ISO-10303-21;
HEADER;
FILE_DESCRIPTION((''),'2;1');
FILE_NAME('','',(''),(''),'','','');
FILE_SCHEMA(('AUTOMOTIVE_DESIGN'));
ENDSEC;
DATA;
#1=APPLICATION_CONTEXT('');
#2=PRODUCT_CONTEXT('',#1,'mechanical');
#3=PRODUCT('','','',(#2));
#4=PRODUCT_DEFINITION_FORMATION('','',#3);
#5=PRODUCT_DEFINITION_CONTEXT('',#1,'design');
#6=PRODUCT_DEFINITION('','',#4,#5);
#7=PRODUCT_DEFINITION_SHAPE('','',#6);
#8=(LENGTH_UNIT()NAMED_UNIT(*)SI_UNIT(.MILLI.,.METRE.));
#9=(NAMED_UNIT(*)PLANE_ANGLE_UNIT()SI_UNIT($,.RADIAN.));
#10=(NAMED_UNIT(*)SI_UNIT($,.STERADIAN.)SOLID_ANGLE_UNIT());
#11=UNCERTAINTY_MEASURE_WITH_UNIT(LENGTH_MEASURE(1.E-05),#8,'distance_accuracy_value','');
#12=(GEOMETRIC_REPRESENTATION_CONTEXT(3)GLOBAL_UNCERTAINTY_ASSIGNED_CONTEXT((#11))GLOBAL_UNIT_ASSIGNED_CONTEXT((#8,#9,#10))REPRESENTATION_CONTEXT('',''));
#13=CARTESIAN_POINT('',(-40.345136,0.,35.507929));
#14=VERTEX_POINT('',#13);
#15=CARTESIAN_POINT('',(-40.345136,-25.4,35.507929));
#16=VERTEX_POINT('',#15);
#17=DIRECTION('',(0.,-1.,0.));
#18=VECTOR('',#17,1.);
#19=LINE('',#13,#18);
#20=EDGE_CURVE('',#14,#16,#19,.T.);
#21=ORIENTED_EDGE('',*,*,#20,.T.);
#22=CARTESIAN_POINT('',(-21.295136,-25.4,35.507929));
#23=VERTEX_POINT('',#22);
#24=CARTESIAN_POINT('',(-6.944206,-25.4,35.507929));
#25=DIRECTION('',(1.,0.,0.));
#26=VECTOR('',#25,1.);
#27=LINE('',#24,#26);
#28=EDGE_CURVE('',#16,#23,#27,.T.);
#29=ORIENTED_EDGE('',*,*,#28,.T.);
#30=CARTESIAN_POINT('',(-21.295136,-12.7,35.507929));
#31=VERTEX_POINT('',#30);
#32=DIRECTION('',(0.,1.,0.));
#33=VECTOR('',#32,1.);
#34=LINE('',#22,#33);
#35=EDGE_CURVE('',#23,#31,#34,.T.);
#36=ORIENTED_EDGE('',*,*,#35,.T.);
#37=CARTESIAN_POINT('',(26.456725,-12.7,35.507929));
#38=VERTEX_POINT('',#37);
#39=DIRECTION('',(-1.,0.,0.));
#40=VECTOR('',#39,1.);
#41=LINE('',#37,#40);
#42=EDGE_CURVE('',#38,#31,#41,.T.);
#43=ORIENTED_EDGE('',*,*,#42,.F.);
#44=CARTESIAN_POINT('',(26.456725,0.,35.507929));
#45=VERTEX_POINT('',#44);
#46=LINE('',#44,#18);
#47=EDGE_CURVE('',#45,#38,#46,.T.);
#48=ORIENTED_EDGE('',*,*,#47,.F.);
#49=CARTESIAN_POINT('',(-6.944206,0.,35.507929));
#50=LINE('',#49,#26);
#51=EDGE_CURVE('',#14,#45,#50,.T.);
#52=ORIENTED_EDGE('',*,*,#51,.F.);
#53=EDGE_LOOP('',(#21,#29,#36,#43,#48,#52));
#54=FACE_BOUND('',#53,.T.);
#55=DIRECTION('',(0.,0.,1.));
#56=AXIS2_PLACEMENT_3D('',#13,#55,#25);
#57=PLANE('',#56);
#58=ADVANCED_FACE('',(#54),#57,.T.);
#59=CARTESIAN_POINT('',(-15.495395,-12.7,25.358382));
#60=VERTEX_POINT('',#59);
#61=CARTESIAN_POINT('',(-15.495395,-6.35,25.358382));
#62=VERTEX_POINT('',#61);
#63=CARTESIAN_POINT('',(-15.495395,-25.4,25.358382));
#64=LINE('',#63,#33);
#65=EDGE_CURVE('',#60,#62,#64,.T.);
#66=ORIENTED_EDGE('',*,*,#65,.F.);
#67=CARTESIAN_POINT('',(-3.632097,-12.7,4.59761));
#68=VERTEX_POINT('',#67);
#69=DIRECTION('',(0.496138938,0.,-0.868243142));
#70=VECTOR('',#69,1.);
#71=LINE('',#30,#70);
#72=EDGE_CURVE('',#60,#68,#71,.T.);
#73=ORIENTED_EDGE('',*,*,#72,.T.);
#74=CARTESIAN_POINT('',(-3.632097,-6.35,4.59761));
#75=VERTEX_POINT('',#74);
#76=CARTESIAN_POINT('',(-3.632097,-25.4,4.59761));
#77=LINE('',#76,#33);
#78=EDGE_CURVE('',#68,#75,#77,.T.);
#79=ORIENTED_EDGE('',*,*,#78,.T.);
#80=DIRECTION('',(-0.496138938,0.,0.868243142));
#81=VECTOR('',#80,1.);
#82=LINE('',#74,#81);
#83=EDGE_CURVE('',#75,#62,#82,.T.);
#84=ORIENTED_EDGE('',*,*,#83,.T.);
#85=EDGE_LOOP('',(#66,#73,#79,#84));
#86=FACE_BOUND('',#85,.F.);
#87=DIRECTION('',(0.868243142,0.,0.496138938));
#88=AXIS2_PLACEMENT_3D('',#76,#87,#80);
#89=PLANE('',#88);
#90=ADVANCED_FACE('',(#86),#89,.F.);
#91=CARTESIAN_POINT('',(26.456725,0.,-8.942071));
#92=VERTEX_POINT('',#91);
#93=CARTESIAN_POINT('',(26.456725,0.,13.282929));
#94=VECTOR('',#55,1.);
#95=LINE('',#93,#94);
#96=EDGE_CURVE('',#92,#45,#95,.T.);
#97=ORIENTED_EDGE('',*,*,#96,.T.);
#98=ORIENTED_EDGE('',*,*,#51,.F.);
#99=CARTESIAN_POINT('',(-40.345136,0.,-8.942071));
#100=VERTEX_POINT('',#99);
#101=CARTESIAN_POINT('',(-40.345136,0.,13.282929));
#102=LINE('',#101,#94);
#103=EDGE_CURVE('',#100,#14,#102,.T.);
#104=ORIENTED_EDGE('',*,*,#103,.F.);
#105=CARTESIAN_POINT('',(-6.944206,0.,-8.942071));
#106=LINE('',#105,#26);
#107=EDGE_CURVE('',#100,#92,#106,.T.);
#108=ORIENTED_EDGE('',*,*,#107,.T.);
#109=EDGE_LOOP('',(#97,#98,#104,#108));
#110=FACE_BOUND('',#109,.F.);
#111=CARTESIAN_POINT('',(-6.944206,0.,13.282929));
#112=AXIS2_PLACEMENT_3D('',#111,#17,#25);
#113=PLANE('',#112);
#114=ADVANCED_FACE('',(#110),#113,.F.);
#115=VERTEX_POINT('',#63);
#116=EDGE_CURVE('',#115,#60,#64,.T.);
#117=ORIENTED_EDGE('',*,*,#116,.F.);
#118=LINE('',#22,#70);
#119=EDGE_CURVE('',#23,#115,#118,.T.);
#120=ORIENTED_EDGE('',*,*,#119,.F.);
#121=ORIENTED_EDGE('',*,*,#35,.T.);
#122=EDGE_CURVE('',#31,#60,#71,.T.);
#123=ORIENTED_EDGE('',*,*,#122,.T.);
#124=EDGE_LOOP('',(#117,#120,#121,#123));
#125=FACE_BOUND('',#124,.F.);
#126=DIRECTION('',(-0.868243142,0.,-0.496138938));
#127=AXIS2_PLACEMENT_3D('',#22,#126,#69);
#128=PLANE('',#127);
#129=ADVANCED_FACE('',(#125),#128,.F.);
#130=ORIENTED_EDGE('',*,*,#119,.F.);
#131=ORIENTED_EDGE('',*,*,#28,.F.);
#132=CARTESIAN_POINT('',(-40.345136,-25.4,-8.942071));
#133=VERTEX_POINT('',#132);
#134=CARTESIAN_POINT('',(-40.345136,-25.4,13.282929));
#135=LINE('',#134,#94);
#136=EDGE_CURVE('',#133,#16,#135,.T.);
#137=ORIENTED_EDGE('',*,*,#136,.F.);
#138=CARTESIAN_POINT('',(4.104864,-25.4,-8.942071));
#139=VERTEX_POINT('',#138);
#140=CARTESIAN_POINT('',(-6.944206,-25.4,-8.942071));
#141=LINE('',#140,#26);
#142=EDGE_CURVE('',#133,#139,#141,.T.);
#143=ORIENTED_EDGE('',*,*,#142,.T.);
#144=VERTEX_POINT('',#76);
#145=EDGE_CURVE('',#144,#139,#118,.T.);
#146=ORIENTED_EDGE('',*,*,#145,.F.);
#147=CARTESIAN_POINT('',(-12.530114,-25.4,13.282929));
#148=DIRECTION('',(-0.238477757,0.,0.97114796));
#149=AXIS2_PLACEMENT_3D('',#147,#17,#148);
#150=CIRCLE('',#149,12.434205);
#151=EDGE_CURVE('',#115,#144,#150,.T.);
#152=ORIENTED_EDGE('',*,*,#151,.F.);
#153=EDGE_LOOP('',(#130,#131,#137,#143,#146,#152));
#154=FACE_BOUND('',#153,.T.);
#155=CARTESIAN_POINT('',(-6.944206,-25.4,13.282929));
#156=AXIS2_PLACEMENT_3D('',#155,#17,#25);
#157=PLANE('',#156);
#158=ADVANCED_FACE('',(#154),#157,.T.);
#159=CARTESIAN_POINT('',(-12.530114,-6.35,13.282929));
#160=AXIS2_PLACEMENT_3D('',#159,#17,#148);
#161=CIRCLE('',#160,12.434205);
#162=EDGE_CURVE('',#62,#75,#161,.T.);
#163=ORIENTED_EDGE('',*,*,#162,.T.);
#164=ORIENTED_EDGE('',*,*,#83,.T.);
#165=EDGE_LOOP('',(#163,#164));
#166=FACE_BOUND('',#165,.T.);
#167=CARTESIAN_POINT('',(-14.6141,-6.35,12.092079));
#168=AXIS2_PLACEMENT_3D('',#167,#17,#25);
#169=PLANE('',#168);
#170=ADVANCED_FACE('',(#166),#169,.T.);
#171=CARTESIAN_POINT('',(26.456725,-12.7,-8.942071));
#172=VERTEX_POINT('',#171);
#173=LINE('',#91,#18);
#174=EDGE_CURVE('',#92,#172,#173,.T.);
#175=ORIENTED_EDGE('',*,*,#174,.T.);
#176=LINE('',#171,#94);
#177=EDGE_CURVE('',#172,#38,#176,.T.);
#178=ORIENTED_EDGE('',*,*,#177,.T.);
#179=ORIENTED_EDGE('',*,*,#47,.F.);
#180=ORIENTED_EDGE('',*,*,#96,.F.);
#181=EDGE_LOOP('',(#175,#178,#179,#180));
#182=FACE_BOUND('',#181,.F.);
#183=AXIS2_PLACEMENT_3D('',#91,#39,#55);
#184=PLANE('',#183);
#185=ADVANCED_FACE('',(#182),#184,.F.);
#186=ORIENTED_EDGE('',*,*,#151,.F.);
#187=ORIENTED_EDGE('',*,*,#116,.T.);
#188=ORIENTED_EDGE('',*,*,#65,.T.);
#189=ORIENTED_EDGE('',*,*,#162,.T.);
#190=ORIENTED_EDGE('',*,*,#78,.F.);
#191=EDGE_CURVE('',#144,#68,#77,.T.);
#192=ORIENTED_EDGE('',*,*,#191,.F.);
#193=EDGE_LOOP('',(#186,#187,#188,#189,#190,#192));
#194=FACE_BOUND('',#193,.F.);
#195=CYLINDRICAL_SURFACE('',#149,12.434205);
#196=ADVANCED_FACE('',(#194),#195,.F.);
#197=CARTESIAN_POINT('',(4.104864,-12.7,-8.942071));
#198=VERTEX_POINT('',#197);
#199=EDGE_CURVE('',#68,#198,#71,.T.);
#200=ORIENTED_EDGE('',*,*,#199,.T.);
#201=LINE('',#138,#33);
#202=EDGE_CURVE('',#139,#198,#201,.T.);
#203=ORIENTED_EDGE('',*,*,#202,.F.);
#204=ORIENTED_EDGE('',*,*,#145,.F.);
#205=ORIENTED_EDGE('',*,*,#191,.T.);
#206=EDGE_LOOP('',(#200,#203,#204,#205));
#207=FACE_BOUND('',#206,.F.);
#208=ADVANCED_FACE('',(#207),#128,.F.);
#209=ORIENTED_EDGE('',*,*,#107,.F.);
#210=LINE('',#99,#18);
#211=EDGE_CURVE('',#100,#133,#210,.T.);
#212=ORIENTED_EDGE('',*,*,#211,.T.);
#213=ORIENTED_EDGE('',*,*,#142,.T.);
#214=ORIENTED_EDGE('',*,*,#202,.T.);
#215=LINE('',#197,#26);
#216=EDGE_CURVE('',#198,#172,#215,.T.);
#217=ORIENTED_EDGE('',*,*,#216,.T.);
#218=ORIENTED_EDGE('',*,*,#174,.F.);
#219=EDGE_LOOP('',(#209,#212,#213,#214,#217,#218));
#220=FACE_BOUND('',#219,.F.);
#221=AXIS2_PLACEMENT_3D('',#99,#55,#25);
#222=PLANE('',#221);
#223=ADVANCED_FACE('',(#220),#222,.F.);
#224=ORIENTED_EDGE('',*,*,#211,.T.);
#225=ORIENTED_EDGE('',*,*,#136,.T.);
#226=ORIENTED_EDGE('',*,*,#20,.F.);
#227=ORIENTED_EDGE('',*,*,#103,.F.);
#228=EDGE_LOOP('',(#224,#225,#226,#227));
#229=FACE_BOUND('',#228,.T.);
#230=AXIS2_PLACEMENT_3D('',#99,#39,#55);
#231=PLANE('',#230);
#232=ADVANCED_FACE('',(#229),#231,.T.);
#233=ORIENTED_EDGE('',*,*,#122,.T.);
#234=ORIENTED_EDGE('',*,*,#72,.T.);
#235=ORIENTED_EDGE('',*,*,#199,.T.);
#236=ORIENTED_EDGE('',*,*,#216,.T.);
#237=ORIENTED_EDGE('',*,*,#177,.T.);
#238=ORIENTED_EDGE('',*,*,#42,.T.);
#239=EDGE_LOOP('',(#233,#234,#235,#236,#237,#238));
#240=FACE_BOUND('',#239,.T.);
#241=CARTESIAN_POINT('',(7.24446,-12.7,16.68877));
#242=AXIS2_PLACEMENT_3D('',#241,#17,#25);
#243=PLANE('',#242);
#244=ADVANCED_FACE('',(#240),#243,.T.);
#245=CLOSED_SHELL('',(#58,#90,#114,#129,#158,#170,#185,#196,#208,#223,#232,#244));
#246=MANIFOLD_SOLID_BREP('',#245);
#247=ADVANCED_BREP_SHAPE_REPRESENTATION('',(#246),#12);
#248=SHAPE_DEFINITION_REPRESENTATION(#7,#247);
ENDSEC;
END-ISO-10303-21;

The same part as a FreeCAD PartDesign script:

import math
import FreeCAD as App
import Part
import Sketcher
from FreeCAD import Vector
Q = App.Units.Quantity


def add_polygon(sketch, points):
    """Adds a closed chain of lines whose ends are joined by coincident constraints."""
    first, n = sketch.GeometryCount, len(points)
    for a, b in zip(points, points[1:] + points[:1]):
        sketch.addGeometry(Part.LineSegment(App.Vector(*a, 0), App.Vector(*b, 0)), False)
    for i in range(n):
        sketch.addConstraint(Sketcher.Constraint("Coincident", first + i, 2, first + (i + 1) % n, 1))

doc = App.newDocument("Part")
body = doc.addObject("PartDesign::Body", "Body")

sketch1 = doc.addObject("Sketcher::SketchObject", "Sketch")
body.addObject(sketch1)
sketch1.AttachmentSupport = (doc.XZ_Plane, [""])
sketch1.MapMode = "FlatFace"
add_polygon(sketch1, [(-40, 36), (-40, -9), (26, -9), (26, 36)])
sketch1.addConstraint(Sketcher.Constraint("Vertical", 0))
sketch1.addConstraint(Sketcher.Constraint("Horizontal", 1))
sketch1.addConstraint(Sketcher.Constraint("Vertical", 2))
sketch1.addConstraint(Sketcher.Constraint("Horizontal", 3))
sketch1.addConstraint(Sketcher.Constraint("DistanceY", 0, 2, 0, 1, Q("1.75 in")))
sketch1.addConstraint(Sketcher.Constraint("DistanceX", 1, 1, 1, 2, 66.801861))
sketch1.addConstraint(Sketcher.Constraint("DistanceY", 0, 2, -1, 1, 8.942071))
sketch1.addConstraint(Sketcher.Constraint("DistanceX", 0, 2, -1, 1, 40.345136))
pad1 = doc.addObject("PartDesign::Pad", "Pad")
body.addObject(pad1)
pad1.Profile = sketch1
pad1.Length = Q("1 in")

sketch2 = doc.addObject("Sketcher::SketchObject", "Sketch001")
body.addObject(sketch2)
sketch2.AttachmentSupport = (doc.XZ_Plane, [""])
sketch2.MapMode = "FlatFace"
sketch2.AttachmentOffset = App.Placement(Vector(0, 0, 1 * 25.4), App.Rotation())
add_polygon(sketch2, [(26, 36), (-21, 36), (4, -9), (26, -9)])
sketch2.addConstraint(Sketcher.Constraint("Horizontal", 0))
sketch2.addConstraint(Sketcher.Constraint("Horizontal", 2))
sketch2.addConstraint(Sketcher.Constraint("Vertical", 3))
sketch2.addConstraint(Sketcher.Constraint("DistanceX", 0, 2, 1, 2, Q("1 in")))
sketch2.addConstraint(Sketcher.Constraint("DistanceY", 3, 1, 3, 2, Q("1.75 in")))
sketch2.addConstraint(Sketcher.Constraint("DistanceX", 0, 2, 0, 1, 47.751861))
sketch2.addConstraint(Sketcher.Constraint("DistanceY", -1, 1, 0, 2, 35.507929))
sketch2.addConstraint(Sketcher.Constraint("DistanceX", 0, 2, -1, 1, 21.295136))
pocket1 = doc.addObject("PartDesign::Pocket", "Pocket")
body.addObject(pocket1)
pocket1.Profile = sketch2
pocket1.Length = Q("0.5 in")

sketch3 = doc.addObject("Sketcher::SketchObject", "Sketch002")
body.addObject(sketch3)
sketch3.AttachmentSupport = (doc.XZ_Plane, [""])
sketch3.MapMode = "FlatFace"
sketch3.AttachmentOffset = App.Placement(Vector(0, 0, 1 * 25.4), App.Rotation())
sketch3.addGeometry(Part.LineSegment(Vector(-4, 5, 0), Vector(-15, 25, 0)), False)
sketch3.addGeometry(Part.ArcOfCircle(Part.Circle(Vector(-13, 13, 0), Vector(0, 0, 1), 12), math.radians(104), math.radians(316)), False)
sketch3.addConstraint(Sketcher.Constraint("Coincident", 0, 1, 1, 2))
sketch3.addConstraint(Sketcher.Constraint("Coincident", 1, 1, 0, 2))
sketch3.addConstraint(Sketcher.Constraint("Radius", 1, 12.434205))
sketch3.addConstraint(Sketcher.Constraint("DistanceX", 1, 1, 0, 1, 11.863298))
sketch3.addConstraint(Sketcher.Constraint("Distance", 0, 23.911242))
sketch3.addConstraint(Sketcher.Constraint("DistanceY", -1, 1, 1, 3, 13.282929))
sketch3.addConstraint(Sketcher.Constraint("DistanceX", 1, 3, -1, 1, 12.530114))
pocket2 = doc.addObject("PartDesign::Pocket", "Pocket001")
body.addObject(pocket2)
pocket2.Profile = sketch3
pocket2.Length = Q("0.75 in")

doc.recompute()
